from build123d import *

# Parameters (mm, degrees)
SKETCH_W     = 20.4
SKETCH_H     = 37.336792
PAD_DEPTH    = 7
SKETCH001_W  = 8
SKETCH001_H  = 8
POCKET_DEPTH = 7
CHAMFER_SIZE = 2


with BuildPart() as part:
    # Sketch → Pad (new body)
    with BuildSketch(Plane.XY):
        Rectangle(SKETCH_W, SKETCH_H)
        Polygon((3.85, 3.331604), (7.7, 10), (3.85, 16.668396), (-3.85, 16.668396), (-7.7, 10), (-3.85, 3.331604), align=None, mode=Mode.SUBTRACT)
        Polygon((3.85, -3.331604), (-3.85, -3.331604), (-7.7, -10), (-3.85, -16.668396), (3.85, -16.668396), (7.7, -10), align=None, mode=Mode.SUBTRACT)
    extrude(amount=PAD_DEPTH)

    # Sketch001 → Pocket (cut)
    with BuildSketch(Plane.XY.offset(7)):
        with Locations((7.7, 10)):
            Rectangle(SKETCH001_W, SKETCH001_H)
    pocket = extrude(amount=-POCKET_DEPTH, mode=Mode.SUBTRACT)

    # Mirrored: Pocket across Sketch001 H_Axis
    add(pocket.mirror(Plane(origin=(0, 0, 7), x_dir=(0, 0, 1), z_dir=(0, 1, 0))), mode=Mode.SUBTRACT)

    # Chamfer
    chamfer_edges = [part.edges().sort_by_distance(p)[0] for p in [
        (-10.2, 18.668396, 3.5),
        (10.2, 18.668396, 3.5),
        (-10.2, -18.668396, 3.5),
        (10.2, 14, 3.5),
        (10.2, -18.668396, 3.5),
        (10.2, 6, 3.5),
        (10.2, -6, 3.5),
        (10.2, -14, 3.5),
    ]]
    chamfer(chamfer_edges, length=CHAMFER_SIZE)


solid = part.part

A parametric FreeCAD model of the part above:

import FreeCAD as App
import Part
import Sketcher

V = App.Vector
Q = App.Units.Quantity


def edges_at(feature, points):
    """Names of the edges that pass closest to the given points."""
    edges = feature.Shape.Edges
    near = lambda p: min(range(len(edges)), key=lambda i: edges[i].distToShape(Part.Vertex(*p))[0])
    return sorted({f"Edge{near(p) + 1}" for p in points})

doc = App.newDocument("Part")
params = doc.addObject("Spreadsheet::Sheet", "Params")
for row, (alias, value) in enumerate([
    ("sketch1_width", "20.4 mm"),
    ("sketch1_width2", "7.7 mm"),
    ("sketch1_length", "7.7 mm"),
    ("pad1_length", "7 mm"),
    ("sketch2_width", "8 mm"),
    ("pocket1_length", "7 mm"),
    ("chamfer_size", "2 mm"),
], start=1):
    params.set(f"A{row}", alias)
    params.set(f"B{row}", "=" + value)
    params.setAlias(f"B{row}", alias)

body = doc.addObject("PartDesign::Body", "Body")

# Sketch on XY plane
sketch1 = doc.addObject("Sketcher::SketchObject", "Sketch")
body.addObject(sketch1)
sketch1.AttachmentSupport = (doc.XY_Plane, [""])
sketch1.MapMode = "FlatFace"
sketch1.addGeometry([
    Part.LineSegment(V(-10, 19, 0), V(-10, -19, 0)),  # 0
    Part.LineSegment(V(-10, -19, 0), V(10, -19, 0)),  # 1
    Part.LineSegment(V(10, -19, 0), V(10, 19, 0)),  # 2
    Part.LineSegment(V(10, 19, 0), V(-10, 19, 0)),  # 3
    Part.LineSegment(V(-4, -3, 0), V(4, -3, 0)),  # 4
    Part.LineSegment(V(4, -3, 0), V(8, -10, 0)),  # 5
    Part.LineSegment(V(8, -10, 0), V(4, -17, 0)),  # 6
    Part.LineSegment(V(4, -17, 0), V(-4, -17, 0)),  # 7
    Part.LineSegment(V(-4, -17, 0), V(-8, -10, 0)),  # 8
    Part.LineSegment(V(-8, -10, 0), V(-4, -3, 0)),  # 9
    Part.LineSegment(V(8, 10, 0), V(4, 3, 0)),  # 10
    Part.LineSegment(V(4, 3, 0), V(-4, 3, 0)),  # 11
    Part.LineSegment(V(-4, 3, 0), V(-8, 10, 0)),  # 12
    Part.LineSegment(V(-8, 10, 0), V(-4, 17, 0)),  # 13
    Part.LineSegment(V(-4, 17, 0), V(4, 17, 0)),  # 14
    Part.LineSegment(V(4, 17, 0), V(8, 10, 0)),  # 15
], False)
sketch1.addConstraint([
    Sketcher.Constraint("Coincident", 0, 2, 1, 1),
    Sketcher.Constraint("Coincident", 1, 2, 2, 1),
    Sketcher.Constraint("Coincident", 2, 2, 3, 1),
    Sketcher.Constraint("Coincident", 3, 2, 0, 1),
    Sketcher.Constraint("Coincident", 4, 2, 5, 1),
    Sketcher.Constraint("Coincident", 5, 2, 6, 1),
    Sketcher.Constraint("Coincident", 6, 2, 7, 1),
    Sketcher.Constraint("Coincident", 7, 2, 8, 1),
    Sketcher.Constraint("Coincident", 8, 2, 9, 1),
    Sketcher.Constraint("Coincident", 9, 2, 4, 1),
    Sketcher.Constraint("Coincident", 10, 2, 11, 1),
    Sketcher.Constraint("Coincident", 11, 2, 12, 1),
    Sketcher.Constraint("Coincident", 12, 2, 13, 1),
    Sketcher.Constraint("Coincident", 13, 2, 14, 1),
    Sketcher.Constraint("Coincident", 14, 2, 15, 1),
    Sketcher.Constraint("Coincident", 15, 2, 10, 1),
    Sketcher.Constraint("Vertical", 0),
    Sketcher.Constraint("Horizontal", 1),
    Sketcher.Constraint("Vertical", 2),
    Sketcher.Constraint("Horizontal", 3),
    Sketcher.Constraint("Horizontal", 4),
    Sketcher.Constraint("Horizontal", 7),
    Sketcher.Constraint("Horizontal", 11),
    Sketcher.Constraint("Horizontal", 14),
    Sketcher.Constraint("Symmetric", 0, 2, 2, 2, -1, 1),
    Sketcher.Constraint("Symmetric", 9, 2, 10, 2, -1, 1),
    Sketcher.Constraint("Symmetric", 5, 2, 12, 2, -1, 1),
    Sketcher.Constraint("Symmetric", 6, 2, 13, 2, -1, 1),
    Sketcher.Constraint("Symmetric", 8, 2, 15, 2, -1, 1),
    Sketcher.Constraint("Symmetric", 5, 2, 8, 2, -2),
    Sketcher.Constraint("Parallel", 5, 8),
    Sketcher.Constraint("Parallel", 6, 9),
    Sketcher.Constraint("Parallel", 8, 12),
    Sketcher.Constraint("Parallel", 12, 15),
    Sketcher.Constraint("Vertical", 4, 2, 6, 2),
    Sketcher.Constraint("Vertical", 7, 2, 9, 2),
    Sketcher.Constraint("Angle", 5, Q("-60.000001 deg")),
    Sketcher.Constraint("DistanceX", 1, 1, 1, 2, 20.4),
    Sketcher.Constraint("DistanceX", 4, 1, 4, 2, 7.7),
    Sketcher.Constraint("DistanceY", 5, 2, -1, 1, 10.0),
    Sketcher.Constraint("DistanceY", 4, 2, 2, 2, 22.0),
    Sketcher.Constraint("Distance", 5, 7.7),
])
sketch1.setExpression("Constraints[37]", "Params.sketch1_width")
sketch1.setExpression("Constraints[38]", "Params.sketch1_width2")
sketch1.setExpression("Constraints[41]", "Params.sketch1_length")
pad1 = doc.addObject("PartDesign::Pad", "Pad")
body.addObject(pad1)
pad1.Profile = sketch1
pad1.setExpression("Length", "Params.pad1_length")

# Sketch on XY plane
sketch2 = doc.addObject("Sketcher::SketchObject", "Sketch001")
body.addObject(sketch2)
sketch2.AttachmentSupport = (doc.XY_Plane, [""])
sketch2.MapMode = "FlatFace"
sketch2.AttachmentOffset = App.Placement(V(0, 0, 7), App.Rotation())
sketch2.addGeometry([
    Part.LineSegment(V(4, 14, 0), V(4, 6, 0)),
    Part.LineSegment(V(4, 6, 0), V(12, 6, 0)),
    Part.LineSegment(V(12, 6, 0), V(12, 14, 0)),
    Part.LineSegment(V(12, 14, 0), V(4, 14, 0)),
], False)
sketch2.addConstraint([
    Sketcher.Constraint("Coincident", 0, 2, 1, 1),
    Sketcher.Constraint("Coincident", 1, 2, 2, 1),
    Sketcher.Constraint("Coincident", 2, 2, 3, 1),
    Sketcher.Constraint("Coincident", 3, 2, 0, 1),
    Sketcher.Constraint("Vertical", 0),
    Sketcher.Constraint("Horizontal", 1),
    Sketcher.Constraint("Vertical", 2),
    Sketcher.Constraint("Horizontal", 3),
    Sketcher.Constraint("Equal", 3, 0),
    Sketcher.Constraint("DistanceX", 1, 1, 1, 2, 8.0),
    Sketcher.Constraint("DistanceY", -1, 1, 0, 2, 6.0),
    Sketcher.Constraint("DistanceX", -1, 1, 0, 2, 3.7),
])
sketch2.setExpression("Constraints[9]", "Params.sketch2_width")
pocket1 = doc.addObject("PartDesign::Pocket", "Pocket")
body.addObject(pocket1)
pocket1.Profile = sketch2
pocket1.setExpression("Length", "Params.pocket1_length")
doc.recompute()

mirrored = doc.addObject("PartDesign::Mirrored", "Mirrored")
body.addObject(mirrored)
mirrored.Originals = [pocket1]
mirrored.MirrorPlane = (doc.XZ_Plane, [""])
body.Tip = mirrored
doc.recompute()

chamfer = doc.addObject("PartDesign::Chamfer", "Chamfer")
body.addObject(chamfer)
chamfer.Base = (mirrored, edges_at(mirrored, [
    (-10.2, 18.668, 3.5),
    (10.2, 18.668, 3.5),
    (-10.2, -18.668, 3.5),
    (10.2, 14, 3.5),
    (10.2, -18.668, 3.5),
    (10.2, 6, 3.5),
    (10.2, -6, 3.5),
    (10.2, -14, 3.5),
]))
chamfer.setExpression("Size", "Params.chamfer_size")

doc.recompute()
